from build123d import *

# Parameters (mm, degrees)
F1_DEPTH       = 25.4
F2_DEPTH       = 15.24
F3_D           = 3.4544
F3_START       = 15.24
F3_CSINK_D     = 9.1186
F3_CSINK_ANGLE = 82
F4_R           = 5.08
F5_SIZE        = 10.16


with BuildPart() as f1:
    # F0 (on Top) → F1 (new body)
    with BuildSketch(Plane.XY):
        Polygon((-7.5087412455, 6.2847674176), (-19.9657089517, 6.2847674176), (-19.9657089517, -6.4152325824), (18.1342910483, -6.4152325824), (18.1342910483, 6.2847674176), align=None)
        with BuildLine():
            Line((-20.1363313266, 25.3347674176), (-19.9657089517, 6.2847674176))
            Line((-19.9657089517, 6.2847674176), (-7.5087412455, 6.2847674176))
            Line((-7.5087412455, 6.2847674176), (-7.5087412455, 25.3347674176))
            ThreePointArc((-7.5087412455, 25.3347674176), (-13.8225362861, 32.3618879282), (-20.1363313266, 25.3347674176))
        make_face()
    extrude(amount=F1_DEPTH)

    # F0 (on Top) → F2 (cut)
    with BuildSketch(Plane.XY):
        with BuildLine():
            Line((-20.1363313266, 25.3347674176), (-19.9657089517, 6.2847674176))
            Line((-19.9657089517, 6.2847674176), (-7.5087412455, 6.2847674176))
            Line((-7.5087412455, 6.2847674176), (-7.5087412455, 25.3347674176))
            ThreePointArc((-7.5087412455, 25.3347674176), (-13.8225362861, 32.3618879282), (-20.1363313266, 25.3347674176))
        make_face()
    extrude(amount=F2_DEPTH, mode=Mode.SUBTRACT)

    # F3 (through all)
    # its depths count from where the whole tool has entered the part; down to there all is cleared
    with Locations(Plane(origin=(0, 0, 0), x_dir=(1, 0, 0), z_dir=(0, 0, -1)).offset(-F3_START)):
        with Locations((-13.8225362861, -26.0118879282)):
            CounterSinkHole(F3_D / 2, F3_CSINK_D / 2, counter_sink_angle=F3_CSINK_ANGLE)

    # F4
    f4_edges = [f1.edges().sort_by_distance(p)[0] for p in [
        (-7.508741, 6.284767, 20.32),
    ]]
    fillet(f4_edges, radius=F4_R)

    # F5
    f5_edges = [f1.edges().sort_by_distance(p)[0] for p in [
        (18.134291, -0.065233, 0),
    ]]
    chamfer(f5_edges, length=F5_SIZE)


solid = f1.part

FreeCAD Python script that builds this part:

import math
import FreeCAD as App
import Part
import Sketcher
from FreeCAD import Vector
Q = App.Units.Quantity


def edges_at(feature, points):
    """Names of the edges that pass closest to the given points."""
    edges = feature.Shape.Edges
    near = lambda p: min(range(len(edges)), key=lambda i: edges[i].distToShape(Part.Vertex(*p))[0])
    return sorted({f"Edge{near(p) + 1}" for p in points})

doc = App.newDocument("Part")
body = doc.addObject("PartDesign::Body", "Body")

# Sketch on XY plane
sketch1 = doc.addObject("Sketcher::SketchObject", "Sketch")
body.addObject(sketch1)
sketch1.AttachmentSupport = (doc.XY_Plane, [""])
sketch1.MapMode = "FlatFace"
sketch1.addGeometry(Part.LineSegment(Vector(-20, 6, 0), Vector(-20, -6, 0)), False)
sketch1.addGeometry(Part.LineSegment(Vector(-20, -6, 0), Vector(18, -6, 0)), False)
sketch1.addGeometry(Part.LineSegment(Vector(18, -6, 0), Vector(18, 6, 0)), False)
sketch1.addGeometry(Part.LineSegment(Vector(18, 6, 0), Vector(-8, 6, 0)), False)
sketch1.addGeometry(Part.LineSegment(Vector(-8, 6, 0), Vector(-8, 25, 0)), False)
sketch1.addGeometry(Part.ArcOfCircle(Part.Circle(Vector(-14, 26, 0), Vector(0, 0, 1), 6), math.radians(-6), math.radians(186)), False)
sketch1.addGeometry(Part.LineSegment(Vector(-20, 25, 0), Vector(-20, 6, 0)), False)
sketch1.addConstraint(Sketcher.Constraint("Coincident", 0, 2, 1, 1))
sketch1.addConstraint(Sketcher.Constraint("Coincident", 1, 2, 2, 1))
sketch1.addConstraint(Sketcher.Constraint("Coincident", 2, 2, 3, 1))
sketch1.addConstraint(Sketcher.Constraint("Coincident", 3, 2, 4, 1))
sketch1.addConstraint(Sketcher.Constraint("Coincident", 4, 2, 5, 1))
sketch1.addConstraint(Sketcher.Constraint("Coincident", 5, 2, 6, 1))
sketch1.addConstraint(Sketcher.Constraint("Coincident", 6, 2, 0, 1))
sketch1.addConstraint(Sketcher.Constraint("Vertical", 0))
sketch1.addConstraint(Sketcher.Constraint("Horizontal", 1))
sketch1.addConstraint(Sketcher.Constraint("Vertical", 2))
sketch1.addConstraint(Sketcher.Constraint("Horizontal", 3))
sketch1.addConstraint(Sketcher.Constraint("Vertical", 4))
sketch1.addConstraint(Sketcher.Constraint("Horizontal", 4, 2, 5, 2))
sketch1.addConstraint(Sketcher.Constraint("Horizontal", 3, 2, 6, 2))
sketch1.addConstraint(Sketcher.Constraint("Radius", 5, Q("0.25 in")))
sketch1.addConstraint(Sketcher.Constraint("DistanceX", 1, 1, 1, 2, Q("1.5 in")))
sketch1.addConstraint(Sketcher.Constraint("DistanceY", 0, 2, 0, 1, Q("0.5 in")))
sketch1.addConstraint(Sketcher.Constraint("DistanceY", 4, 1, 4, 2, Q("0.75 in")))
sketch1.addConstraint(Sketcher.Constraint("DistanceX", 3, 2, 3, 1, Q("25.643032 mm")))
sketch1.addConstraint(Sketcher.Constraint("DistanceX", 0, 2, -1, 1, Q("19.965709 mm")))
sketch1.addConstraint(Sketcher.Constraint("DistanceX", 5, 2, -1, 1, Q("20.136331 mm")))
sketch1.addConstraint(Sketcher.Constraint("DistanceY", -1, 1, 5, 3, Q("26.011888 mm")))
pad1 = doc.addObject("PartDesign::Pad", "Pad")
body.addObject(pad1)
pad1.Profile = sketch1
pad1.Length = Q("1 in")

# Sketch on XY plane
sketch2 = doc.addObject("Sketcher::SketchObject", "Sketch001")
body.addObject(sketch2)
sketch2.AttachmentSupport = (doc.XY_Plane, [""])
sketch2.MapMode = "FlatFace"
sketch2.addGeometry(Part.LineSegment(Vector(-20, 25, 0), Vector(-20, 6, 0)), False)
sketch2.addGeometry(Part.LineSegment(Vector(-20, 6, 0), Vector(-8, 6, 0)), False)
sketch2.addGeometry(Part.LineSegment(Vector(-8, 6, 0), Vector(-8, 25, 0)), False)
sketch2.addGeometry(Part.ArcOfCircle(Part.Circle(Vector(-14, 26, 0), Vector(0, 0, 1), 6), math.radians(-6), math.radians(186)), False)
sketch2.addConstraint(Sketcher.Constraint("Coincident", 0, 2, 1, 1))
sketch2.addConstraint(Sketcher.Constraint("Coincident", 1, 2, 2, 1))
sketch2.addConstraint(Sketcher.Constraint("Coincident", 2, 2, 3, 1))
sketch2.addConstraint(Sketcher.Constraint("Coincident", 3, 2, 0, 1))
sketch2.addConstraint(Sketcher.Constraint("Horizontal", 1))
sketch2.addConstraint(Sketcher.Constraint("Vertical", 2))
sketch2.addConstraint(Sketcher.Constraint("Horizontal", 2, 2, 3, 2))
sketch2.addConstraint(Sketcher.Constraint("Radius", 3, Q("0.25 in")))
sketch2.addConstraint(Sketcher.Constraint("DistanceY", 2, 1, 2, 2, Q("0.75 in")))
sketch2.addConstraint(Sketcher.Constraint("DistanceX", 1, 1, 1, 2, Q("12.456968 mm")))
sketch2.addConstraint(Sketcher.Constraint("DistanceX", 0, 2, -1, 1, Q("19.965709 mm")))
sketch2.addConstraint(Sketcher.Constraint("DistanceX", 3, 2, -1, 1, Q("20.136331 mm")))
sketch2.addConstraint(Sketcher.Constraint("DistanceY", -1, 1, 3, 3, Q("26.011888 mm")))
pocket1 = doc.addObject("PartDesign::Pocket", "Pocket")
body.addObject(pocket1)
pocket1.Profile = sketch2
pocket1.Length = Q("0.6 in")
pocket1.Reversed = True

# Sketch on XY plane
sketch3 = doc.addObject("Sketcher::SketchObject", "Sketch002")
body.addObject(sketch3)
sketch3.AttachmentSupport = (doc.XY_Plane, [""])
sketch3.MapMode = "FlatFace"
sketch3.AttachmentOffset = App.Placement(Vector(0, 0, 0.6 * 25.4), App.Rotation())
sketch3.addGeometry(Part.Circle(Vector(-13.8, 26, 0), Vector(0, 0, 1), 1.7), False)
sketch3.addConstraint(Sketcher.Constraint("Diameter", 0, Q("0.136 in")))
sketch3.addConstraint(Sketcher.Constraint("DistanceX", 0, 3, -1, 1, Q("13.822536 mm")))
sketch3.addConstraint(Sketcher.Constraint("DistanceY", -1, 1, 0, 3, Q("26.011888 mm")))
doc.recompute()
hole = doc.addObject("PartDesign::Hole", "Hole")
body.addObject(hole)
hole.Profile = sketch3
hole.ThreadType = "None"
hole.Diameter = Q("0.136 in")
hole.DepthType = "ThroughAll"
hole.HoleCutType = "Countersink"
hole.HoleCutDiameter = Q("0.359 in")
hole.HoleCutCountersinkAngle = 82
hole.Reversed = True
doc.recompute()

fillet = doc.addObject("PartDesign::Fillet", "Fillet")
body.addObject(fillet)
fillet.Base = (hole, edges_at(hole, [(-7.509, 6.285, 20.32)]))
fillet.Radius = Q("0.2 in")
doc.recompute()

chamfer = doc.addObject("PartDesign::Chamfer", "Chamfer")
body.addObject(chamfer)
chamfer.Base = (fillet, edges_at(fillet, [(18.134, -0.065, 0)]))
chamfer.Size = Q("0.4 in")

doc.recompute()
